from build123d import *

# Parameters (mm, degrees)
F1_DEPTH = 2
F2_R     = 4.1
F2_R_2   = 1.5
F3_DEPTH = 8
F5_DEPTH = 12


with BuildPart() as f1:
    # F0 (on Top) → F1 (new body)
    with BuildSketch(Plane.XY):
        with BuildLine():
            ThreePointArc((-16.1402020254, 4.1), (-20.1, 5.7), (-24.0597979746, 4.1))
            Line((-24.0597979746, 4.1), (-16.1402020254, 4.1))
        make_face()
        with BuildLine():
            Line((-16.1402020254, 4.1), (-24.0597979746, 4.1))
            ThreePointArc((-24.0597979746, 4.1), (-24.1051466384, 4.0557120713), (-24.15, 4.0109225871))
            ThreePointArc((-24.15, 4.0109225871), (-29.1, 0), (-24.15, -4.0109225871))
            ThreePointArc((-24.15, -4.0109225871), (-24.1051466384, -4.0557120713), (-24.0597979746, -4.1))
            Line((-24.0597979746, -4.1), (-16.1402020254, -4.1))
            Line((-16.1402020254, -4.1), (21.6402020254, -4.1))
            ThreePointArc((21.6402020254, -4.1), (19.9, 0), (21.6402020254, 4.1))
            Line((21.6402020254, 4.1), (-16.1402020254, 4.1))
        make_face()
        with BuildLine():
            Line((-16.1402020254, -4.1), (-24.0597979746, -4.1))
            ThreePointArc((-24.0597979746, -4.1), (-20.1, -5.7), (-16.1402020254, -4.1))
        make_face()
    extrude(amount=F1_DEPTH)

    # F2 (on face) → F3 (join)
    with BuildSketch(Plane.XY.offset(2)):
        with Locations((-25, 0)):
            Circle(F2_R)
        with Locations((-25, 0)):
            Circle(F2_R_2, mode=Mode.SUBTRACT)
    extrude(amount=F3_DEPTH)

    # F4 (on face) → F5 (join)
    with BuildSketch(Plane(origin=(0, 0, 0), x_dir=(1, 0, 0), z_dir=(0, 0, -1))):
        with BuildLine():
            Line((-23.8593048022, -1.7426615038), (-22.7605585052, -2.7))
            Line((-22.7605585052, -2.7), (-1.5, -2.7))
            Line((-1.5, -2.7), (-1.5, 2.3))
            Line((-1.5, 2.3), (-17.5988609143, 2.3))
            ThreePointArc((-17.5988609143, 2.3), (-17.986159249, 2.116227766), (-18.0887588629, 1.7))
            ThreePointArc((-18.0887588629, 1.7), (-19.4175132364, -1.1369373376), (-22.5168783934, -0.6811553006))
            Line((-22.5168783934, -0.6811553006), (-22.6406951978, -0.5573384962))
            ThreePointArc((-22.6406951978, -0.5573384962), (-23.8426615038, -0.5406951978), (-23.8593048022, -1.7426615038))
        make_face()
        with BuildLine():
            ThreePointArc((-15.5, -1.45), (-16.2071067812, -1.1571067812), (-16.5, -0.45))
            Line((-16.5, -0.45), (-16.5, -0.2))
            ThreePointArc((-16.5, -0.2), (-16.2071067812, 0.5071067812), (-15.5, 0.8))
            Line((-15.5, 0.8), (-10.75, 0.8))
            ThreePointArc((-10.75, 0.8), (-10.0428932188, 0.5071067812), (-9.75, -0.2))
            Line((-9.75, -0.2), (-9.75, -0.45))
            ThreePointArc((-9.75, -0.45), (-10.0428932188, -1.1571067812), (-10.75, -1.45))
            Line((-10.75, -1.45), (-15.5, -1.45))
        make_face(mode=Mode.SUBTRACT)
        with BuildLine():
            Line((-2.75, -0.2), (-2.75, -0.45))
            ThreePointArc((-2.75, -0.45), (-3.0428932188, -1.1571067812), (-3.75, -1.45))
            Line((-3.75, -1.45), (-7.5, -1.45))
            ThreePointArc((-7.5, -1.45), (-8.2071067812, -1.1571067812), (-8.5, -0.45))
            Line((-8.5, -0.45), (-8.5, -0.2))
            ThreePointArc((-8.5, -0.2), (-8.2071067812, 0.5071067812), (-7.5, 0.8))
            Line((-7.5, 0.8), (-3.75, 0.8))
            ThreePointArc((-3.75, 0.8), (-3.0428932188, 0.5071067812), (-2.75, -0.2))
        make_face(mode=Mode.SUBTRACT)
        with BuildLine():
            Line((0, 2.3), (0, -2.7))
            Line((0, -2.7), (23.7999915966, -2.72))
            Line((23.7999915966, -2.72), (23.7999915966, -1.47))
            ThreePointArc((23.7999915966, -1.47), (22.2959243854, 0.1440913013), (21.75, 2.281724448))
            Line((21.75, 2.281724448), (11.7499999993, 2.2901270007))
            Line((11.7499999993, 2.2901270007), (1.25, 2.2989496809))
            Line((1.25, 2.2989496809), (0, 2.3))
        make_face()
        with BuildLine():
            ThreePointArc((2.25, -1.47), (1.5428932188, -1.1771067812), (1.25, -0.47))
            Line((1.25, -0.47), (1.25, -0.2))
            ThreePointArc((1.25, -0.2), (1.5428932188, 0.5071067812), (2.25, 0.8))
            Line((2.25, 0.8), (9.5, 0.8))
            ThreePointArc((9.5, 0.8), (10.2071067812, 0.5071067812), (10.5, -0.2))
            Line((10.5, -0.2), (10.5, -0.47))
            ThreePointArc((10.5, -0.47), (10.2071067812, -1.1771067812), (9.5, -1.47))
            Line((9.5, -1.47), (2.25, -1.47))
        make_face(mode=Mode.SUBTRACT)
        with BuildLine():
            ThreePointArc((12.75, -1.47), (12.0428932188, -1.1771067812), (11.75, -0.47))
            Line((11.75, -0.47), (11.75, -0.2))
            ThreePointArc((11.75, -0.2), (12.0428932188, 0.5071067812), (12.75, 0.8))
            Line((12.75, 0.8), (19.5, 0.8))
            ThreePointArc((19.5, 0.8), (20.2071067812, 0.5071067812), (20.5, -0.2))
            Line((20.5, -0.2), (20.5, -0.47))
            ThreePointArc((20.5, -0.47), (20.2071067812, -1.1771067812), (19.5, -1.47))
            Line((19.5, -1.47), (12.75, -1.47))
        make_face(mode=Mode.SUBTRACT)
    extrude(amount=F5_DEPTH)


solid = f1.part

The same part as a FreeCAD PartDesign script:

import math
import FreeCAD as App
import Part
import Sketcher
Q = App.Units.Quantity

doc = App.newDocument("Part")
body = doc.addObject("PartDesign::Body", "Body")

sketch1 = body.newObject("Sketcher::SketchObject", "Sketch")
sketch1.AttachmentSupport = (doc.getObject("XY_Plane"), [""])
sketch1.MapMode = "FlatFace"
sketch1.addGeometry(Part.ArcOfCircle(Part.Circle(App.Vector(-20.1, 0, 0), App.Vector(0, 0, 1), 5.7), math.radians(45.996573), math.radians(134.003427)), False)
sketch1.addGeometry(Part.ArcOfCircle(Part.Circle(App.Vector(-20.100001, 0.000001, 0), App.Vector(0, 0, 1), 5.699999), math.radians(134.003427), math.radians(135.277754)), False)
sketch1.addGeometry(Part.ArcOfCircle(Part.Circle(App.Vector(-25, 0, 0), App.Vector(0, 0, 1), 4.1), math.radians(78.034828), math.radians(281.965172)), False)
sketch1.addGeometry(Part.ArcOfCircle(Part.Circle(App.Vector(-20.100001, -0.000001, 0), App.Vector(0, 0, 1), 5.699999), math.radians(-135.277754), math.radians(-134.003427)), False)
sketch1.addGeometry(Part.ArcOfCircle(Part.Circle(App.Vector(-20.1, 0, 0), App.Vector(0, 0, 1), 5.7), math.radians(-134.003427), math.radians(-45.996573)), False)
sketch1.addGeometry(Part.LineSegment(App.Vector(-16.140202, -4.1, 0), App.Vector(21.640202, -4.1, 0)), False)
sketch1.addGeometry(Part.ArcOfCircle(Part.Circle(App.Vector(25.6, 0, 0), App.Vector(0, 0, 1), 5.7), math.radians(134.003427), math.radians(225.996573)), False)
sketch1.addGeometry(Part.LineSegment(App.Vector(21.640202, 4.1, 0), App.Vector(-16.140202, 4.1, 0)), False)
sketch1.addConstraint(Sketcher.Constraint("Tangent", 0, 2, 1, 1))
sketch1.addConstraint(Sketcher.Constraint("Coincident", 1, 2, 2, 1))
sketch1.addConstraint(Sketcher.Constraint("Coincident", 2, 2, 3, 1))
sketch1.addConstraint(Sketcher.Constraint("Tangent", 3, 2, 4, 1))
sketch1.addConstraint(Sketcher.Constraint("Coincident", 4, 2, 5, 1))
sketch1.addConstraint(Sketcher.Constraint("Coincident", 5, 2, 6, 2))
sketch1.addConstraint(Sketcher.Constraint("Coincident", 6, 1, 7, 1))
sketch1.addConstraint(Sketcher.Constraint("Coincident", 7, 2, 0, 1))
sketch1.addConstraint(Sketcher.Constraint("Horizontal", 5))
sketch1.addConstraint(Sketcher.Constraint("Horizontal", 7))
sketch1.addConstraint(Sketcher.Constraint("Coincident", 3, 3, 0, 3))
sketch1.addConstraint(Sketcher.Constraint("Equal", 0, 1))
sketch1.addConstraint(Sketcher.Constraint("Equal", 1, 3))
sketch1.addConstraint(Sketcher.Constraint("Equal", 3, 4))
sketch1.addConstraint(Sketcher.Constraint("Equal", 4, 6))
sketch1.addConstraint(Sketcher.Constraint("Symmetric", 1, 2, 2, 2, -1))
sketch1.addConstraint(Sketcher.Constraint("Symmetric", 5, 2, 6, 1, -1))
sketch1.addConstraint(Sketcher.Constraint("Horizontal", 3, 2, 4, 2))
sketch1.addConstraint(Sketcher.Constraint("Horizontal", 0, 2, 6, 1))
sketch1.addConstraint(Sketcher.Constraint("Radius", 0, 5.7))
sketch1.addConstraint(Sketcher.Constraint("Radius", 2, 4.1))
sketch1.addConstraint(Sketcher.Constraint("DistanceX", 2, 3, -1, 1, 25.0))
sketch1.addConstraint(Sketcher.Constraint("DistanceX", 0, 3, -1, 1, 20.1))
sketch1.addConstraint(Sketcher.Constraint("DistanceX", -1, 1, 6, 3, 25.6))
sketch1.addConstraint(Sketcher.Constraint("DistanceY", -1, 1, 0, 2, 4.1))
pad1 = body.newObject("PartDesign::Pad", "Pad")
pad1.Profile = sketch1
pad1.Length = 2

sketch2 = body.newObject("Sketcher::SketchObject", "Sketch001")
sketch2.AttachmentSupport = (doc.getObject("XY_Plane"), [""])
sketch2.MapMode = "FlatFace"
sketch2.AttachmentOffset = App.Placement(App.Vector(0, 0, 2), App.Rotation())
sketch2.addGeometry(Part.Circle(App.Vector(-25, 0, 0), App.Vector(0, 0, 1), 4.1), False)
sketch2.addGeometry(Part.Circle(App.Vector(-25, 0, 0), App.Vector(0, 0, 1), 1.5), False)
sketch2.addConstraint(Sketcher.Constraint("Coincident", 1, 3, 0, 3))
sketch2.addConstraint(Sketcher.Constraint("PointOnObject", 0, 3, -1))
sketch2.addConstraint(Sketcher.Constraint("Diameter", 1, 3.0))
sketch2.addConstraint(Sketcher.Constraint("Diameter", 0, 8.2))
sketch2.addConstraint(Sketcher.Constraint("DistanceX", 0, 3, -1, 1, 25.0))
pad2 = body.newObject("PartDesign::Pad", "Pad001")
pad2.Profile = sketch2
pad2.Length = 8

sketch3 = body.newObject("Sketcher::SketchObject", "Sketch002")
sketch3.AttachmentSupport = (doc.getObject("XY_Plane"), [""])
sketch3.MapMode = "FlatFace"
sketch3.addGeometry(Part.LineSegment(App.Vector(-23.859305, 1.742662, 0), App.Vector(-22.760559, 2.7, 0)), False)
sketch3.addGeometry(Part.LineSegment(App.Vector(-22.760559, 2.7, 0), App.Vector(-1.5, 2.7, 0)), False)
sketch3.addGeometry(Part.LineSegment(App.Vector(-1.5, 2.7, 0), App.Vector(-1.5, -2.3, 0)), False)
sketch3.addGeometry(Part.LineSegment(App.Vector(-1.5, -2.3, 0), App.Vector(-17.598861, -2.3, 0)), False)
sketch3.addGeometry(Part.ArcOfCircle(Part.Circle(App.Vector(-17.598861, -1.8, 0), App.Vector(0, 0, 1), 0.5), math.radians(168.463041), math.radians(270)), False)
sketch3.addGeometry(Part.ArcOfCircle(Part.Circle(App.Vector(-20.660723, -1.175, 0), App.Vector(0, 0, 1), 2.625), math.radians(-11.536959), math.radians(135)), False)
sketch3.addGeometry(Part.LineSegment(App.Vector(-22.516878, 0.681155, 0), App.Vector(-22.640695, 0.557338, 0)), False)
sketch3.addGeometry(Part.ArcOfCircle(Part.Circle(App.Vector(-23.25, 1.15, 0), App.Vector(0, 0, 1), 0.85), math.radians(135.793308), math.radians(315.793308)), False)
sketch3.addGeometry(Part.LineSegment(App.Vector(-10.75, 1.45, 0), App.Vector(-15.5, 1.45, 0)), False)
sketch3.addGeometry(Part.ArcOfCircle(Part.Circle(App.Vector(-15.5, 0.45, 0), App.Vector(0, 0, 1), 1), math.radians(90), math.radians(180)), False)
sketch3.addGeometry(Part.LineSegment(App.Vector(-16.5, 0.45, 0), App.Vector(-16.5, 0.2, 0)), False)
sketch3.addGeometry(Part.ArcOfCircle(Part.Circle(App.Vector(-15.5, 0.2, 0), App.Vector(0, 0, 1), 1), math.radians(180), math.radians(270)), False)
sketch3.addGeometry(Part.LineSegment(App.Vector(-15.5, -0.8, 0), App.Vector(-10.75, -0.8, 0)), False)
sketch3.addGeometry(Part.ArcOfCircle(Part.Circle(App.Vector(-10.75, 0.2, 0), App.Vector(0, 0, 1), 1), math.radians(-90), math.radians(0)), False)
sketch3.addGeometry(Part.LineSegment(App.Vector(-9.75, 0.2, 0), App.Vector(-9.75, 0.45, 0)), False)
sketch3.addGeometry(Part.ArcOfCircle(Part.Circle(App.Vector(-10.75, 0.45, 0), App.Vector(0, 0, 1), 1), math.radians(0), math.radians(90)), False)
sketch3.addGeometry(Part.ArcOfCircle(Part.Circle(App.Vector(-3.75, 0.2, 0), App.Vector(0, 0, 1), 1), math.radians(-90), math.radians(0)), False)
sketch3.addGeometry(Part.LineSegment(App.Vector(-2.75, 0.2, 0), App.Vector(-2.75, 0.45, 0)), False)
sketch3.addGeometry(Part.ArcOfCircle(Part.Circle(App.Vector(-3.75, 0.45, 0), App.Vector(0, 0, 1), 1), math.radians(0), math.radians(90)), False)
sketch3.addGeometry(Part.LineSegment(App.Vector(-3.75, 1.45, 0), App.Vector(-7.5, 1.45, 0)), False)
sketch3.addGeometry(Part.ArcOfCircle(Part.Circle(App.Vector(-7.5, 0.45, 0), App.Vector(0, 0, 1), 1), math.radians(90), math.radians(180)), False)
sketch3.addGeometry(Part.LineSegment(App.Vector(-8.5, 0.45, 0), App.Vector(-8.5, 0.2, 0)), False)
sketch3.addGeometry(Part.ArcOfCircle(Part.Circle(App.Vector(-7.5, 0.2, 0), App.Vector(0, 0, 1), 1), math.radians(180), math.radians(270)), False)
sketch3.addGeometry(Part.LineSegment(App.Vector(-7.5, -0.8, 0), App.Vector(-3.75, -0.8, 0)), False)
sketch3.addGeometry(Part.LineSegment(App.Vector(0, -2.3, 0), App.Vector(0, 2.7, 0)), False)
sketch3.addGeometry(Part.LineSegment(App.Vector(0, 2.7, 0), App.Vector(23.799992, 2.72, 0)), False)
sketch3.addGeometry(Part.LineSegment(App.Vector(23.799992, 2.72, 0), App.Vector(23.799992, 1.47, 0)), False)
sketch3.addGeometry(Part.ArcOfCircle(Part.Circle(App.Vector(26.208043, -2.281724, 0), App.Vector(0, 0, 1), 4.458043), math.radians(122.694454), math.radians(180)), False)
sketch3.addGeometry(Part.LineSegment(App.Vector(21.75, -2.281724, 0), App.Vector(11.75, -2.290127, 0)), False)
sketch3.addGeometry(Part.LineSegment(App.Vector(11.75, -2.290127, 0), App.Vector(1.25, -2.29895, 0)), False)
sketch3.addGeometry(Part.LineSegment(App.Vector(1.25, -2.29895, 0), App.Vector(0, -2.3, 0)), False)
sketch3.addGeometry(Part.LineSegment(App.Vector(9.5, 1.47, 0), App.Vector(2.25, 1.47, 0)), False)
sketch3.addGeometry(Part.ArcOfCircle(Part.Circle(App.Vector(2.25, 0.47, 0), App.Vector(0, 0, 1), 1), math.radians(90), math.radians(180)), False)
sketch3.addGeometry(Part.LineSegment(App.Vector(1.25, 0.47, 0), App.Vector(1.25, 0.2, 0)), False)
sketch3.addGeometry(Part.ArcOfCircle(Part.Circle(App.Vector(2.25, 0.2, 0), App.Vector(0, 0, 1), 1), math.radians(180), math.radians(270)), False)
sketch3.addGeometry(Part.LineSegment(App.Vector(2.25, -0.8, 0), App.Vector(9.5, -0.8, 0)), False)
sketch3.addGeometry(Part.ArcOfCircle(Part.Circle(App.Vector(9.5, 0.2, 0), App.Vector(0, 0, 1), 1), math.radians(-90), math.radians(0)), False)
sketch3.addGeometry(Part.LineSegment(App.Vector(10.5, 0.2, 0), App.Vector(10.5, 0.47, 0)), False)
sketch3.addGeometry(Part.ArcOfCircle(Part.Circle(App.Vector(9.5, 0.47, 0), App.Vector(0, 0, 1), 1), math.radians(0), math.radians(90)), False)
sketch3.addGeometry(Part.LineSegment(App.Vector(19.5, 1.47, 0), App.Vector(12.75, 1.47, 0)), False)
sketch3.addGeometry(Part.ArcOfCircle(Part.Circle(App.Vector(12.75, 0.47, 0), App.Vector(0, 0, 1), 1), math.radians(90), math.radians(180)), False)
sketch3.addGeometry(Part.LineSegment(App.Vector(11.75, 0.47, 0), App.Vector(11.75, 0.2, 0)), False)
sketch3.addGeometry(Part.ArcOfCircle(Part.Circle(App.Vector(12.75, 0.2, 0), App.Vector(0, 0, 1), 1), math.radians(180), math.radians(270)), False)
sketch3.addGeometry(Part.LineSegment(App.Vector(12.75, -0.8, 0), App.Vector(19.5, -0.8, 0)), False)
sketch3.addGeometry(Part.ArcOfCircle(Part.Circle(App.Vector(19.5, 0.2, 0), App.Vector(0, 0, 1), 1), math.radians(-90), math.radians(0)), False)
sketch3.addGeometry(Part.LineSegment(App.Vector(20.5, 0.2, 0), App.Vector(20.5, 0.47, 0)), False)
sketch3.addGeometry(Part.ArcOfCircle(Part.Circle(App.Vector(19.5, 0.47, 0), App.Vector(0, 0, 1), 1), math.radians(0), math.radians(90)), False)
sketch3.addConstraint(Sketcher.Constraint("Coincident", 0, 2, 1, 1))
sketch3.addConstraint(Sketcher.Constraint("Coincident", 1, 2, 2, 1))
sketch3.addConstraint(Sketcher.Constraint("Coincident", 2, 2, 3, 1))
sketch3.addConstraint(Sketcher.Constraint("Tangent", 3, 2, 4, 2))
sketch3.addConstraint(Sketcher.Constraint("Tangent", 4, 1, 5, 1))
sketch3.addConstraint(Sketcher.Constraint("Tangent", 5, 2, 6, 1))
sketch3.addConstraint(Sketcher.Constraint("Coincident", 6, 2, 7, 2))
sketch3.addConstraint(Sketcher.Constraint("Coincident", 7, 1, 0, 1))
sketch3.addConstraint(Sketcher.Constraint("Tangent", 8, 2, 9, 1))
sketch3.addConstraint(Sketcher.Constraint("Tangent", 9, 2, 10, 1))
sketch3.addConstraint(Sketcher.Constraint("Tangent", 10, 2, 11, 1))
sketch3.addConstraint(Sketcher.Constraint("Tangent", 11, 2, 12, 1))
sketch3.addConstraint(Sketcher.Constraint("Tangent", 12, 2, 13, 1))
sketch3.addConstraint(Sketcher.Constraint("Tangent", 13, 2, 14, 1))
sketch3.addConstraint(Sketcher.Constraint("Tangent", 14, 2, 15, 1))
sketch3.addConstraint(Sketcher.Constraint("Tangent", 15, 2, 8, 1))
sketch3.addConstraint(Sketcher.Constraint("Tangent", 16, 2, 17, 1))
sketch3.addConstraint(Sketcher.Constraint("Tangent", 17, 2, 18, 1))
sketch3.addConstraint(Sketcher.Constraint("Tangent", 18, 2, 19, 1))
sketch3.addConstraint(Sketcher.Constraint("Tangent", 19, 2, 20, 1))
sketch3.addConstraint(Sketcher.Constraint("Tangent", 20, 2, 21, 1))
sketch3.addConstraint(Sketcher.Constraint("Tangent", 21, 2, 22, 1))
sketch3.addConstraint(Sketcher.Constraint("Tangent", 22, 2, 23, 1))
sketch3.addConstraint(Sketcher.Constraint("Tangent", 23, 2, 16, 1))
sketch3.addConstraint(Sketcher.Constraint("Coincident", 24, 2, 25, 1))
sketch3.addConstraint(Sketcher.Constraint("Coincident", 25, 2, 26, 1))
sketch3.addConstraint(Sketcher.Constraint("Coincident", 26, 2, 27, 1))
sketch3.addConstraint(Sketcher.Constraint("Coincident", 27, 2, 28, 1))
sketch3.addConstraint(Sketcher.Constraint("Coincident", 28, 2, 29, 1))
sketch3.addConstraint(Sketcher.Constraint("Coincident", 29, 2, 30, 1))
sketch3.addConstraint(Sketcher.Constraint("Coincident", 30, 2, 24, 1))
sketch3.addConstraint(Sketcher.Constraint("Tangent", 31, 2, 32, 1))
sketch3.addConstraint(Sketcher.Constraint("Tangent", 32, 2, 33, 1))
sketch3.addConstraint(Sketcher.Constraint("Tangent", 33, 2, 34, 1))
sketch3.addConstraint(Sketcher.Constraint("Tangent", 34, 2, 35, 1))
sketch3.addConstraint(Sketcher.Constraint("Tangent", 35, 2, 36, 1))
sketch3.addConstraint(Sketcher.Constraint("Tangent", 36, 2, 37, 1))
sketch3.addConstraint(Sketcher.Constraint("Tangent", 37, 2, 38, 1))
sketch3.addConstraint(Sketcher.Constraint("Tangent", 38, 2, 31, 1))
sketch3.addConstraint(Sketcher.Constraint("Tangent", 39, 2, 40, 1))
sketch3.addConstraint(Sketcher.Constraint("Tangent", 40, 2, 41, 1))
sketch3.addConstraint(Sketcher.Constraint("Tangent", 41, 2, 42, 1))
sketch3.addConstraint(Sketcher.Constraint("Tangent", 42, 2, 43, 1))
sketch3.addConstraint(Sketcher.Constraint("Tangent", 43, 2, 44, 1))
sketch3.addConstraint(Sketcher.Constraint("Tangent", 44, 2, 45, 1))
sketch3.addConstraint(Sketcher.Constraint("Tangent", 45, 2, 46, 1))
sketch3.addConstraint(Sketcher.Constraint("Tangent", 46, 2, 39, 1))
sketch3.addConstraint(Sketcher.Constraint("Horizontal", 1))
sketch3.addConstraint(Sketcher.Constraint("Vertical", 2))
sketch3.addConstraint(Sketcher.Constraint("Horizontal", 3))
sketch3.addConstraint(Sketcher.Constraint("Horizontal", 8))
sketch3.addConstraint(Sketcher.Constraint("Vertical", 10))
sketch3.addConstraint(Sketcher.Constraint("Horizontal", 12))
sketch3.addConstraint(Sketcher.Constraint("Vertical", 14))
sketch3.addConstraint(Sketcher.Constraint("Vertical", 17))
sketch3.addConstraint(Sketcher.Constraint("Horizontal", 19))
sketch3.addConstraint(Sketcher.Constraint("Vertical", 21))
sketch3.addConstraint(Sketcher.Constraint("Horizontal", 23))
sketch3.addConstraint(Sketcher.Constraint("Vertical", 24))
sketch3.addConstraint(Sketcher.Constraint("Vertical", 26))
sketch3.addConstraint(Sketcher.Constraint("Horizontal", 31))
sketch3.addConstraint(Sketcher.Constraint("Vertical", 33))
sketch3.addConstraint(Sketcher.Constraint("Horizontal", 35))
sketch3.addConstraint(Sketcher.Constraint("Vertical", 37))
sketch3.addConstraint(Sketcher.Constraint("Horizontal", 39))
sketch3.addConstraint(Sketcher.Constraint("Vertical", 41))
sketch3.addConstraint(Sketcher.Constraint("Horizontal", 43))
sketch3.addConstraint(Sketcher.Constraint("Vertical", 45))
sketch3.addConstraint(Sketcher.Constraint("Equal", 9, 11))
sketch3.addConstraint(Sketcher.Constraint("Equal", 11, 13))
sketch3.addConstraint(Sketcher.Constraint("Equal", 13, 15))
sketch3.addConstraint(Sketcher.Constraint("Equal", 15, 16))
sketch3.addConstraint(Sketcher.Constraint("Equal", 16, 18))
sketch3.addConstraint(Sketcher.Constraint("Equal", 18, 20))
sketch3.addConstraint(Sketcher.Constraint("Equal", 20, 22))
sketch3.addConstraint(Sketcher.Constraint("Equal", 22, 32))
sketch3.addConstraint(Sketcher.Constraint("Equal", 32, 34))
sketch3.addConstraint(Sketcher.Constraint("Equal", 34, 36))
sketch3.addConstraint(Sketcher.Constraint("Equal", 36, 38))
sketch3.addConstraint(Sketcher.Constraint("Equal", 38, 40))
sketch3.addConstraint(Sketcher.Constraint("Equal", 40, 42))
sketch3.addConstraint(Sketcher.Constraint("Equal", 42, 44))
sketch3.addConstraint(Sketcher.Constraint("Equal", 44, 46))
sketch3.addConstraint(Sketcher.Constraint("PointOnObject", 24, 2, -2))
sketch3.addConstraint(Sketcher.Constraint("Parallel", 25, 28))
sketch3.addConstraint(Sketcher.Constraint("Parallel", 28, 29))
sketch3.addConstraint(Sketcher.Constraint("Parallel", 29, 30))
sketch3.addConstraint(Sketcher.Constraint("Horizontal", 13, 3, 16, 3))
sketch3.addConstraint(Sketcher.Constraint("Horizontal", 15, 3, 18, 3))
sketch3.addConstraint(Sketcher.Constraint("Horizontal", 22, 3, 34, 3))
sketch3.addConstraint(Sketcher.Constraint("Horizontal", 38, 3, 40, 3))
sketch3.addConstraint(Sketcher.Constraint("Horizontal", 36, 3, 42, 3))
sketch3.addConstraint(Sketcher.Constraint("Horizontal", 1, 2, 24, 2))
sketch3.addConstraint(Sketcher.Constraint("Horizontal", 3, 2, 30, 2))
sketch3.addConstraint(Sketcher.Constraint("Horizontal", 26, 2, 31, 2))
sketch3.addConstraint(Sketcher.Constraint("Vertical", 29, 2, 32, 2))
sketch3.addConstraint(Sketcher.Constraint("Vertical", 28, 2, 40, 2))
sketch3.addConstraint(Sketcher.Constraint("Radius", 9, 1.0))
sketch3.addConstraint(Sketcher.Constraint("Radius", 4, 0.5))
sketch3.addConstraint(Sketcher.Constraint("DistanceY", 2, 2, 2, 1, 5.0))
sketch3.addConstraint(Sketcher.Constraint("Angle", 6, Q("-135 deg")))
sketch3.addConstraint(Sketcher.Constraint("Radius", 7, 0.85))
sketch3.addConstraint(Sketcher.Constraint("Radius", 5, 2.625))
sketch3.addConstraint(Sketcher.Constraint("Distance", 25, 23.8))
sketch3.addConstraint(Sketcher.Constraint("DistanceX", 8, 2, 8, 1, 4.75))
sketch3.addConstraint(Sketcher.Constraint("DistanceX", 19, 2, 19, 1, 3.75))
sketch3.addConstraint(Sketcher.Constraint("DistanceX", 31, 2, 31, 1, 7.25))
sketch3.addConstraint(Sketcher.Constraint("DistanceX", 39, 2, 39, 1, 6.75))
sketch3.addConstraint(Sketcher.Constraint("DistanceY", 10, 2, 10, 1, 0.25))
sketch3.addConstraint(Sketcher.Constraint("DistanceY", 26, 2, 26, 1, 1.25))
sketch3.addConstraint(Sketcher.Constraint("DistanceY", 33, 2, 33, 1, 0.27))
sketch3.addConstraint(Sketcher.Constraint("DistanceY", 4, 3, -1, 1, 1.8))
sketch3.addConstraint(Sketcher.Constraint("DistanceX", 9, 3, -1, 1, 15.5))
sketch3.addConstraint(Sketcher.Constraint("DistanceY", -1, 1, 11, 3, 0.2))
sketch3.addConstraint(Sketcher.Constraint("DistanceX", 20, 3, -1, 1, 7.5))
sketch3.addConstraint(Sketcher.Constraint("DistanceX", -1, 1, 36, 3, 9.5))
sketch3.addConstraint(Sketcher.Constraint("DistanceX", -1, 1, 44, 3, 19.5))
sketch3.addConstraint(Sketcher.Constraint("DistanceX", 1, 2, -1, 1, 1.5))
sketch3.addConstraint(Sketcher.Constraint("DistanceY", 4, 1, -1, 1, 1.7))
sketch3.addConstraint(Sketcher.Constraint("DistanceX", 7, 3, -1, 1, 23.25))
sketch3.addConstraint(Sketcher.Constraint("DistanceY", -1, 1, 7, 3, 1.15))
sketch3.addConstraint(Sketcher.Constraint("DistanceX", -1, 1, 27, 2, 21.75))
sketch3.addConstraint(Sketcher.Constraint("Radius", 27, 4.458043))
sketch3.addConstraint(Sketcher.Constraint("DistanceX", 1, 1, 1, 2, 21.260559))
sketch3.addConstraint(Sketcher.Constraint("DistanceX", 3, 2, 3, 1, 16.098861))
sketch3.addConstraint(Sketcher.Constraint("DistanceY", -1, 1, 7, 1, 1.742662))
pad3 = body.newObject("PartDesign::Pad", "Pad002")
pad3.Profile = sketch3
pad3.Length = 12
pad3.Reversed = True

doc.recompute()
